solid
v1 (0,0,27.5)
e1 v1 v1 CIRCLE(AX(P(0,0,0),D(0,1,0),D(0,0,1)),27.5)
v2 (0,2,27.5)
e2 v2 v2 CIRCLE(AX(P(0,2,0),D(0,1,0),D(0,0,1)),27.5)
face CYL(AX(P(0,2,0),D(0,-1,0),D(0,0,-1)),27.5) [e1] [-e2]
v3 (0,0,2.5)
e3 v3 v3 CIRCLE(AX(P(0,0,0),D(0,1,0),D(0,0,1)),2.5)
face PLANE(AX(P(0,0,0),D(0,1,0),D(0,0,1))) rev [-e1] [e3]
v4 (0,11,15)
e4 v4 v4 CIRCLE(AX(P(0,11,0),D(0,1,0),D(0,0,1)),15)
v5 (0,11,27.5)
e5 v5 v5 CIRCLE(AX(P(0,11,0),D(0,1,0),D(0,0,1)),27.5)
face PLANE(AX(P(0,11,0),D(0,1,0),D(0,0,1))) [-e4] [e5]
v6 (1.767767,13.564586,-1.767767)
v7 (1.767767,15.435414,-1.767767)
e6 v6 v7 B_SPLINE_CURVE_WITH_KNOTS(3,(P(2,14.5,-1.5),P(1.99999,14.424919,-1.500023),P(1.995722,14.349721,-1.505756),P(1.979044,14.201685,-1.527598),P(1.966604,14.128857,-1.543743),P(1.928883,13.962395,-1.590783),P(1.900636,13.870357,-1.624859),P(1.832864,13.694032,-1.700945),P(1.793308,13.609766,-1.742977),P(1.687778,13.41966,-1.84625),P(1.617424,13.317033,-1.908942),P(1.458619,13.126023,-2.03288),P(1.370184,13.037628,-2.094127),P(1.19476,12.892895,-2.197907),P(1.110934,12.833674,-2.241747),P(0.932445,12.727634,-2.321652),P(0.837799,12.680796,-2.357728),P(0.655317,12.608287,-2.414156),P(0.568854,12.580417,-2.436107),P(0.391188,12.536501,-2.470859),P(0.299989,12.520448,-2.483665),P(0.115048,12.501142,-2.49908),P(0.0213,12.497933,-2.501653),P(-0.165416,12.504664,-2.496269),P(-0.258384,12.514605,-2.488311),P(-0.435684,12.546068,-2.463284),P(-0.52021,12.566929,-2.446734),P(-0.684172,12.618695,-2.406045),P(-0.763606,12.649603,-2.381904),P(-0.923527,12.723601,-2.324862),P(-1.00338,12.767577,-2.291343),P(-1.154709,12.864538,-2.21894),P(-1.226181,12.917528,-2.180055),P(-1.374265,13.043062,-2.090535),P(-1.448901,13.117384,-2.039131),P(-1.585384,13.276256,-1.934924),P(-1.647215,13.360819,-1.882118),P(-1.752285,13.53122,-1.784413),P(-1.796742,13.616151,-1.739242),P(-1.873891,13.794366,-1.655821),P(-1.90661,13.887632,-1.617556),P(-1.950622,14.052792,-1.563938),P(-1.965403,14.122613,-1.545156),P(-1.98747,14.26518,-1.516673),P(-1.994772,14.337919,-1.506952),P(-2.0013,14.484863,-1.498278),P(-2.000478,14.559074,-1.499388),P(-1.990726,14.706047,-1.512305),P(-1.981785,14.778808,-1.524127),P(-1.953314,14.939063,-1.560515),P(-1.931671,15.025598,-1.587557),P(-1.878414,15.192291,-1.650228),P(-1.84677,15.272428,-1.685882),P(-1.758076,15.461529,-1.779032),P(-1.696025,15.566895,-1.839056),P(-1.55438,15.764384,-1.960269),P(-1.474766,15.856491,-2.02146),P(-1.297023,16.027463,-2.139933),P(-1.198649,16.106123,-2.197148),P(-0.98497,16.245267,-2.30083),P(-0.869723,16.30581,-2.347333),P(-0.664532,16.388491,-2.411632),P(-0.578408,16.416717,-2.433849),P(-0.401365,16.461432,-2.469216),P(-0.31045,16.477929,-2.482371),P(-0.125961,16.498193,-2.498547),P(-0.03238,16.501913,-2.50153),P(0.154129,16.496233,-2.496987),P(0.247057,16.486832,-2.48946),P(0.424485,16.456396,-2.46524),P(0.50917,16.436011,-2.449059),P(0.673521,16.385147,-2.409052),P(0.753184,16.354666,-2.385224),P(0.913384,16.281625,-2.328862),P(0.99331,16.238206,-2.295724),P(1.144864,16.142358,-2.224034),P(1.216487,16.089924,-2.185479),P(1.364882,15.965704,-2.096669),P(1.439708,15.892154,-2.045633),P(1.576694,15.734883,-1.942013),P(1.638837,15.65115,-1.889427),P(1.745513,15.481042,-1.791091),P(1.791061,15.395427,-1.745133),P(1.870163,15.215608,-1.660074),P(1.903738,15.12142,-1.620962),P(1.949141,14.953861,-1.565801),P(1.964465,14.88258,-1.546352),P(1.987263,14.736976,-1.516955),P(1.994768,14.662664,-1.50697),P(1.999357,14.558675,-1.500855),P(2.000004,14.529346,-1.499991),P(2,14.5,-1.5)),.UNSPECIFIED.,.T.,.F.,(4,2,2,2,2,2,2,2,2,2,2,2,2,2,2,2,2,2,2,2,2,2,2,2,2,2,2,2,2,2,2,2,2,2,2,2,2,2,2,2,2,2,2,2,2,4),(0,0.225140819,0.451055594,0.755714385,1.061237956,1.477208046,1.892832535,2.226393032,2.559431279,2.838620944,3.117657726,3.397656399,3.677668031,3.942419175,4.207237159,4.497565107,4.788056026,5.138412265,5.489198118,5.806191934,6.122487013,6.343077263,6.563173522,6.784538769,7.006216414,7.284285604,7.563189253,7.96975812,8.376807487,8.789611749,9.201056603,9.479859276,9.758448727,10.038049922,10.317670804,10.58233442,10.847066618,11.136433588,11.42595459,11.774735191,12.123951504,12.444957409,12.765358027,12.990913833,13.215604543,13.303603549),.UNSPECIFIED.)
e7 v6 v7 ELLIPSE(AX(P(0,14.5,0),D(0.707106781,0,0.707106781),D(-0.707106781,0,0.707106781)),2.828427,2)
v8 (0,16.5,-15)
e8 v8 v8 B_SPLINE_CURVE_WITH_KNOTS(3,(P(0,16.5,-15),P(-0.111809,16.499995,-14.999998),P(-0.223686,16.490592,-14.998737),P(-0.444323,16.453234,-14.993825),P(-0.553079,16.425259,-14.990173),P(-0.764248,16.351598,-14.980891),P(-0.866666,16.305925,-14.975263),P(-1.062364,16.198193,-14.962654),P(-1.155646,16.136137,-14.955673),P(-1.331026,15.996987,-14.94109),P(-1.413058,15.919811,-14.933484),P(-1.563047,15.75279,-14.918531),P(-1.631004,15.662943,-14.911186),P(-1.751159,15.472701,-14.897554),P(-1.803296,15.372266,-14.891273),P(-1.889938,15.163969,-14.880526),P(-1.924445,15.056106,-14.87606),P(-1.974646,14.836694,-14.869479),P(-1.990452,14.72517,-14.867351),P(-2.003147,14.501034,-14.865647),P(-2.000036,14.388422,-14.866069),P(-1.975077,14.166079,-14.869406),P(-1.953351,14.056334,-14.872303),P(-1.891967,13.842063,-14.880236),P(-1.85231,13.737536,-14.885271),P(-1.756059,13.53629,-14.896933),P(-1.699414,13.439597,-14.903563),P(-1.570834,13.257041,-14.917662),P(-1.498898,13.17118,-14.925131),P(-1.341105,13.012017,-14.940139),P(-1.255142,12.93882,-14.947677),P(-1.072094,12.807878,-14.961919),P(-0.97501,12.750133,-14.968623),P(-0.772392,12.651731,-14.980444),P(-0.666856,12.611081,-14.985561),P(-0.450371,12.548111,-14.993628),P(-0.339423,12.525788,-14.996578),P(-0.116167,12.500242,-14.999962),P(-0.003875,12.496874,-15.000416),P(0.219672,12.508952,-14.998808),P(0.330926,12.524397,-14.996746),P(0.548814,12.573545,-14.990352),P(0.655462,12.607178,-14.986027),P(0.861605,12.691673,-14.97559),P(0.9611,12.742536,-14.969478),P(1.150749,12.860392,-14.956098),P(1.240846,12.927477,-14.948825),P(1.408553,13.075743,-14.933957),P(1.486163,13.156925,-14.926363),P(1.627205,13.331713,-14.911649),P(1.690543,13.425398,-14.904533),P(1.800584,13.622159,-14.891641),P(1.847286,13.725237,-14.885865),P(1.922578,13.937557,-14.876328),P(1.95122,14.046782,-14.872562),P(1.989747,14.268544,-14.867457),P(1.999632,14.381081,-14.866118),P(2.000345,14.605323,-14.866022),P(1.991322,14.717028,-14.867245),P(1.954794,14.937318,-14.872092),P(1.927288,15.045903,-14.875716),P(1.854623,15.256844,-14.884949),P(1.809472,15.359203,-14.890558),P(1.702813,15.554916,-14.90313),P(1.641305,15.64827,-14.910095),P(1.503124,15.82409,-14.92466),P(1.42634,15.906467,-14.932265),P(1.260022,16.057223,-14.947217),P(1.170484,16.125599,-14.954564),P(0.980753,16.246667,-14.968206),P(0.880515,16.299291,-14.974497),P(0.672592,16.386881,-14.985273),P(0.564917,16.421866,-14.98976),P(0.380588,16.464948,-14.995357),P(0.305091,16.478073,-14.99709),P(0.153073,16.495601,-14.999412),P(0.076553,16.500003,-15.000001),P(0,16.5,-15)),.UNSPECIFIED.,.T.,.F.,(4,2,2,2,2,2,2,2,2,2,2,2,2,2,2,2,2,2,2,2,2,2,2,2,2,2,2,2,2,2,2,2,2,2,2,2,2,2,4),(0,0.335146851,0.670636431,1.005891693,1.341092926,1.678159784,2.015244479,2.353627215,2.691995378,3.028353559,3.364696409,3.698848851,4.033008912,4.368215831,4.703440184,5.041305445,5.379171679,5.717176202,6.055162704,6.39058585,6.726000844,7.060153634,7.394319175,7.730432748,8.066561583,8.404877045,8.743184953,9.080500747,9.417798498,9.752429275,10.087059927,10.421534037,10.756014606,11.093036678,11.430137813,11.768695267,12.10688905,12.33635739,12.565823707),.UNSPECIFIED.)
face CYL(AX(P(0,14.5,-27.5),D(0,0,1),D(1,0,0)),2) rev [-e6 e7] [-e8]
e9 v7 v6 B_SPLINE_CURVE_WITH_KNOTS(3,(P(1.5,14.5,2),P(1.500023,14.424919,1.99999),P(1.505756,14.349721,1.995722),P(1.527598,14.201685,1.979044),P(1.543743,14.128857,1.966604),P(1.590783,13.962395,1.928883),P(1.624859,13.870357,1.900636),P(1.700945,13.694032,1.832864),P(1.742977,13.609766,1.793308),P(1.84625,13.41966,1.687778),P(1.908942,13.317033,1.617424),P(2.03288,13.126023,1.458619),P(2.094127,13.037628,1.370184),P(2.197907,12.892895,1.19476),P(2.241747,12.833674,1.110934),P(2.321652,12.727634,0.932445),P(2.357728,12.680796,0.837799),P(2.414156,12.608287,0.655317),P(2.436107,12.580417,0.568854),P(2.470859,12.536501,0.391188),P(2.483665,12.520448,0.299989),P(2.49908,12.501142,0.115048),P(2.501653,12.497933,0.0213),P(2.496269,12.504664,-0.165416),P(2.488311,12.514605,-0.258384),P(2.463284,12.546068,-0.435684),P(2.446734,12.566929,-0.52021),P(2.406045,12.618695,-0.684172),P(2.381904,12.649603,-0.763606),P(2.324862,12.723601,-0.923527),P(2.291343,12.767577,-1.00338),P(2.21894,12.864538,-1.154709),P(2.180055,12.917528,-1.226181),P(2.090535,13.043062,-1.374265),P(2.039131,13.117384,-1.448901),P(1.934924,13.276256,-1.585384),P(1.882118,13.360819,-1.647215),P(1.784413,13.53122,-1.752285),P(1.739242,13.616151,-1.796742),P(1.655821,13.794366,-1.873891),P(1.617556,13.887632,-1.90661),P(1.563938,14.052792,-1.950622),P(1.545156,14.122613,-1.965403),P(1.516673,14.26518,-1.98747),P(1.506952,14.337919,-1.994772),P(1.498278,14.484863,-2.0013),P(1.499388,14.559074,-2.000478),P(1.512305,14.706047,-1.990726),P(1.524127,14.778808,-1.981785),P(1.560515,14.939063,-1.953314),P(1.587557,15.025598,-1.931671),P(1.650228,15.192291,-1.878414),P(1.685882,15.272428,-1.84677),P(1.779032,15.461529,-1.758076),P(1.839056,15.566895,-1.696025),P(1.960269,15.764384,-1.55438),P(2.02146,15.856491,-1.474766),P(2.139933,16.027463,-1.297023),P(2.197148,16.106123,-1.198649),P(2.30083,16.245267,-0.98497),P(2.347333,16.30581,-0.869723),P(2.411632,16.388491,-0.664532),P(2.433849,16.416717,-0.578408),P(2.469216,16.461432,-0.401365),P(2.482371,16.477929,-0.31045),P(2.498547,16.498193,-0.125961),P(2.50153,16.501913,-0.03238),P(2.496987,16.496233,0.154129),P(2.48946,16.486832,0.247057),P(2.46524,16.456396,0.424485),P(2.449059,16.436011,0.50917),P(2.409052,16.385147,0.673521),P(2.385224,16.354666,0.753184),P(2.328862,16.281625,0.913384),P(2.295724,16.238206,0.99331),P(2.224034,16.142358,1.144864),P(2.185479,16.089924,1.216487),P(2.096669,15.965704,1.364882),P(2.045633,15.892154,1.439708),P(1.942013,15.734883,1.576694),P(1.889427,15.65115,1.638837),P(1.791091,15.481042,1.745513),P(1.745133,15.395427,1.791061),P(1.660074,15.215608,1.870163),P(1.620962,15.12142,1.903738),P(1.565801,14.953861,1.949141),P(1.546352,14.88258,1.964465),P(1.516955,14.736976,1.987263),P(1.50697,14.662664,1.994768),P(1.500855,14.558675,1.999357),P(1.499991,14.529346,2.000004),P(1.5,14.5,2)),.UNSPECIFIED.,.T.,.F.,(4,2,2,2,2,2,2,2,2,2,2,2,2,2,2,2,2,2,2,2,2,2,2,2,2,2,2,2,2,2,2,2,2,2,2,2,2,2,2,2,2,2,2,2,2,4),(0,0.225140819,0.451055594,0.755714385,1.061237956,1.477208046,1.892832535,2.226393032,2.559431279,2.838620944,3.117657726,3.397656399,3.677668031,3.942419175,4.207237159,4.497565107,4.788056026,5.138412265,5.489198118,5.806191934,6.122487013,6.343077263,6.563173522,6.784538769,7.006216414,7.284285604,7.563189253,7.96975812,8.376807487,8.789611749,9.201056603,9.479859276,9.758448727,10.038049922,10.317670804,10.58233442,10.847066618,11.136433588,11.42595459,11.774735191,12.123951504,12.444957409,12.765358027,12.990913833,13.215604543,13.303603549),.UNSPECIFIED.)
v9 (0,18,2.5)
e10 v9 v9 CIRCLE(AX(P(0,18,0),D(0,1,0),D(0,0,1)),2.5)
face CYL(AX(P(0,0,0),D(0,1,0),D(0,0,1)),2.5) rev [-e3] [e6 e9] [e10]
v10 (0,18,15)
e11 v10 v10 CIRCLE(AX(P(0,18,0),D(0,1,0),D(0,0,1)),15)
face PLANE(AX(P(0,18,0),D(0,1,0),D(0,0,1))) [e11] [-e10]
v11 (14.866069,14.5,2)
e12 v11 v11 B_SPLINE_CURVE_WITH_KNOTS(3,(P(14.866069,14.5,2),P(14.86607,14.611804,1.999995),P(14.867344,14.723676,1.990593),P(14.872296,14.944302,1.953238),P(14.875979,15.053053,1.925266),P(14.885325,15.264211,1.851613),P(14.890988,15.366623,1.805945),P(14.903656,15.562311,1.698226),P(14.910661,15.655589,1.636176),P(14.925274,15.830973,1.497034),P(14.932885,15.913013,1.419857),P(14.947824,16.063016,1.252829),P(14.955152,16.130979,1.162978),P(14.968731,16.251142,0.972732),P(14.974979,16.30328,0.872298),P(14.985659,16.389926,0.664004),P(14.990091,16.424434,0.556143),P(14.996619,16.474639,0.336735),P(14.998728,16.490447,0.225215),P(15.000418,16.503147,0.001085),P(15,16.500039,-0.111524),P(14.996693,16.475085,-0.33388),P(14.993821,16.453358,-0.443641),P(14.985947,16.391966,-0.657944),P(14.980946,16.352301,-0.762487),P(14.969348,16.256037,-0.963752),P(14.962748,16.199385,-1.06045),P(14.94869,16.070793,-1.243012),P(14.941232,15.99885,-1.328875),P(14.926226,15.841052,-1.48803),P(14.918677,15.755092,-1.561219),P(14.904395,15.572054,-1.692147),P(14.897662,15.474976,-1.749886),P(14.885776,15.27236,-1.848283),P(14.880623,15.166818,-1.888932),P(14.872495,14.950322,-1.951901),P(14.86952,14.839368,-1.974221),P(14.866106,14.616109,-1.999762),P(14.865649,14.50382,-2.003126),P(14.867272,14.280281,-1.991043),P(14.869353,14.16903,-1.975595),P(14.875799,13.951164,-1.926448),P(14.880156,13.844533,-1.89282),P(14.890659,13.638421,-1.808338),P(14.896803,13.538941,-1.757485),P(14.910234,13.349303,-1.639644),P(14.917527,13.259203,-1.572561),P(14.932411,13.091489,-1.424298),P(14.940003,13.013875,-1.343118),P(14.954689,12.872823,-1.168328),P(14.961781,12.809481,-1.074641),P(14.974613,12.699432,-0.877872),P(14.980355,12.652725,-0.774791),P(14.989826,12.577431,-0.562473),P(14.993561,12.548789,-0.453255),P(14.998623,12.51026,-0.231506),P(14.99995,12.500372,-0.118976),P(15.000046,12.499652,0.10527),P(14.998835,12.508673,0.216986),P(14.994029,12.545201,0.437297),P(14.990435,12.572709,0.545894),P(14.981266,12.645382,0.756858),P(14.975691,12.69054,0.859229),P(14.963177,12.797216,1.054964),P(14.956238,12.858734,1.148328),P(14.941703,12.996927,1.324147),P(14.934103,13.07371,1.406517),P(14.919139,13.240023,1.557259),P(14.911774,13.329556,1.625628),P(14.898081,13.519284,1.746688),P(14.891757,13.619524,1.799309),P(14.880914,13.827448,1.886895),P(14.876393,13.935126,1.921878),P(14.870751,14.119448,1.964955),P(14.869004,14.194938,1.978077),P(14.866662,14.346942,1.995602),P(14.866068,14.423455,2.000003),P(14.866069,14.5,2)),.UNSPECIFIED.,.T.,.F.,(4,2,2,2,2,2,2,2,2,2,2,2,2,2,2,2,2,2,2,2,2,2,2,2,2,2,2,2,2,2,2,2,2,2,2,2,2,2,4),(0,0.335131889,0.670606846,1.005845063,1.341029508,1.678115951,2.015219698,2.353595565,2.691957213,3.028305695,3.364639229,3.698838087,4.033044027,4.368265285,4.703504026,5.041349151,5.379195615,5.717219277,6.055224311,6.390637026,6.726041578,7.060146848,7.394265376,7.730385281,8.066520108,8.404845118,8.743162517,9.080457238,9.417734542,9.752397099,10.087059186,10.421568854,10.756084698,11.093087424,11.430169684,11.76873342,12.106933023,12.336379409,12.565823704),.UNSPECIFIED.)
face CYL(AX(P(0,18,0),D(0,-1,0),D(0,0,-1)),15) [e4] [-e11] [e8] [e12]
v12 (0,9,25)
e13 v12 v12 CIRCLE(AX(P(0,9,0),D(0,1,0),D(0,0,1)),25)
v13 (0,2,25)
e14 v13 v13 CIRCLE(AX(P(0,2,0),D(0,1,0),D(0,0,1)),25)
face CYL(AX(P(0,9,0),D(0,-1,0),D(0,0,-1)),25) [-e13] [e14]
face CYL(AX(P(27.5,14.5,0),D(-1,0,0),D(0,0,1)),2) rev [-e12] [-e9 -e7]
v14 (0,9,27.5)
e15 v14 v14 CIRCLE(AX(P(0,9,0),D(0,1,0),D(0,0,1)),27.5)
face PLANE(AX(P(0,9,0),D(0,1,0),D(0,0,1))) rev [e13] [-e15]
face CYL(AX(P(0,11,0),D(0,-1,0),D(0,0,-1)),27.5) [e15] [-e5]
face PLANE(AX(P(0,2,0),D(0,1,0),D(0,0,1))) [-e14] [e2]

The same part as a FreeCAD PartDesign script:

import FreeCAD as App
import Part
import Sketcher
from FreeCAD import Vector

doc = App.newDocument("Part")
body = doc.addObject("PartDesign::Body", "Body")

sketch1 = doc.addObject("Sketcher::SketchObject", "Sketch")
body.addObject(sketch1)
sketch1.AttachmentSupport = (doc.XZ_Plane, [""])
sketch1.MapMode = "FlatFace"
sketch1.addGeometry(Part.Circle(Vector(0, 0, 0), Vector(0, 0, 1), 27.5), False)
sketch1.addConstraint(Sketcher.Constraint("Coincident", 0, 3, -1, 1))
sketch1.addConstraint(Sketcher.Constraint("Diameter", 0, 55.0))
pad1 = doc.addObject("PartDesign::Pad", "Pad")
body.addObject(pad1)
pad1.Profile = sketch1
pad1.Length = 2
pad1.Reversed = True

sketch2 = doc.addObject("Sketcher::SketchObject", "Sketch001")
body.addObject(sketch2)
sketch2.AttachmentSupport = (doc.XZ_Plane, [""])
sketch2.MapMode = "FlatFace"
sketch2.AttachmentOffset = App.Placement(Vector(0, 0, -2), App.Rotation())
sketch2.addGeometry(Part.Circle(Vector(0, 0, 0), Vector(0, 0, 1), 25), False)
sketch2.addConstraint(Sketcher.Constraint("Coincident", 0, 3, -1, 1))
sketch2.addConstraint(Sketcher.Constraint("Diameter", 0, 50.0))
pad2 = doc.addObject("PartDesign::Pad", "Pad001")
body.addObject(pad2)
pad2.Profile = sketch2
pad2.Length = 7
pad2.Reversed = True

sketch3 = doc.addObject("Sketcher::SketchObject", "Sketch002")
body.addObject(sketch3)
sketch3.AttachmentSupport = (doc.XZ_Plane, [""])
sketch3.MapMode = "FlatFace"
sketch3.AttachmentOffset = App.Placement(Vector(0, 0, -9), App.Rotation())
sketch3.addGeometry(Part.Circle(Vector(0, 0, 0), Vector(0, 0, 1), 27.5), False)
sketch3.addConstraint(Sketcher.Constraint("Coincident", 0, 3, -1, 1))
sketch3.addConstraint(Sketcher.Constraint("Diameter", 0, 55.0))
pad3 = doc.addObject("PartDesign::Pad", "Pad002")
body.addObject(pad3)
pad3.Profile = sketch3
pad3.Length = 2
pad3.Reversed = True

sketch4 = doc.addObject("Sketcher::SketchObject", "Sketch003")
body.addObject(sketch4)
sketch4.AttachmentSupport = (doc.XZ_Plane, [""])
sketch4.MapMode = "FlatFace"
sketch4.AttachmentOffset = App.Placement(Vector(0, 0, -11), App.Rotation())
sketch4.addGeometry(Part.Circle(Vector(0, 0, 0), Vector(0, 0, 1), 15), False)
sketch4.addConstraint(Sketcher.Constraint("Coincident", 0, 3, -1, 1))
sketch4.addConstraint(Sketcher.Constraint("Diameter", 0, 30.0))
pad4 = doc.addObject("PartDesign::Pad", "Pad003")
body.addObject(pad4)
pad4.Profile = sketch4
pad4.Length = 7
pad4.Reversed = True

sketch5 = doc.addObject("Sketcher::SketchObject", "Sketch004")
body.addObject(sketch5)
sketch5.AttachmentSupport = (doc.XZ_Plane, [""])
sketch5.MapMode = "FlatFace"
sketch5.AttachmentOffset = App.Placement(Vector(0, 0, -18), App.Rotation())
sketch5.addGeometry(Part.Circle(Vector(0, 0, 0), Vector(0, 0, 1), 2.5), False)
sketch5.addConstraint(Sketcher.Constraint("Coincident", 0, 3, -1, 1))
sketch5.addConstraint(Sketcher.Constraint("Diameter", 0, 5.0))
pocket1 = doc.addObject("PartDesign::Pocket", "Pocket")
body.addObject(pocket1)
pocket1.Profile = sketch5
pocket1.Type = "ThroughAll"
pocket1.Reversed = True

sketch6 = doc.addObject("Sketcher::SketchObject", "Sketch005")
body.addObject(sketch6)
sketch6.AttachmentSupport = (doc.XY_Plane, [""])
sketch6.MapMode = "FlatFace"
sketch6.addGeometry(Part.Circle(Vector(0, 14.5, 0), Vector(0, 0, 1), 2), False)
sketch6.addConstraint(Sketcher.Constraint("PointOnObject", 0, 3, -2))
sketch6.addConstraint(Sketcher.Constraint("Diameter", 0, 4.0))
sketch6.addConstraint(Sketcher.Constraint("DistanceY", -1, 1, 0, 3, 14.5))
pocket2 = doc.addObject("PartDesign::Pocket", "Pocket001")
body.addObject(pocket2)
pocket2.Profile = sketch6
pocket2.Type = "ThroughAll"
doc.recompute()

polarpattern = doc.addObject("PartDesign::PolarPattern", "PolarPattern")
body.addObject(polarpattern)
polarpattern.Originals = [pocket2]
polarpattern.Axis = (doc.Y_Axis, [""])
polarpattern.Angle = 90
polarpattern.Occurrences = 2
polarpattern.Reversed = True
body.Tip = polarpattern

doc.recompute()
